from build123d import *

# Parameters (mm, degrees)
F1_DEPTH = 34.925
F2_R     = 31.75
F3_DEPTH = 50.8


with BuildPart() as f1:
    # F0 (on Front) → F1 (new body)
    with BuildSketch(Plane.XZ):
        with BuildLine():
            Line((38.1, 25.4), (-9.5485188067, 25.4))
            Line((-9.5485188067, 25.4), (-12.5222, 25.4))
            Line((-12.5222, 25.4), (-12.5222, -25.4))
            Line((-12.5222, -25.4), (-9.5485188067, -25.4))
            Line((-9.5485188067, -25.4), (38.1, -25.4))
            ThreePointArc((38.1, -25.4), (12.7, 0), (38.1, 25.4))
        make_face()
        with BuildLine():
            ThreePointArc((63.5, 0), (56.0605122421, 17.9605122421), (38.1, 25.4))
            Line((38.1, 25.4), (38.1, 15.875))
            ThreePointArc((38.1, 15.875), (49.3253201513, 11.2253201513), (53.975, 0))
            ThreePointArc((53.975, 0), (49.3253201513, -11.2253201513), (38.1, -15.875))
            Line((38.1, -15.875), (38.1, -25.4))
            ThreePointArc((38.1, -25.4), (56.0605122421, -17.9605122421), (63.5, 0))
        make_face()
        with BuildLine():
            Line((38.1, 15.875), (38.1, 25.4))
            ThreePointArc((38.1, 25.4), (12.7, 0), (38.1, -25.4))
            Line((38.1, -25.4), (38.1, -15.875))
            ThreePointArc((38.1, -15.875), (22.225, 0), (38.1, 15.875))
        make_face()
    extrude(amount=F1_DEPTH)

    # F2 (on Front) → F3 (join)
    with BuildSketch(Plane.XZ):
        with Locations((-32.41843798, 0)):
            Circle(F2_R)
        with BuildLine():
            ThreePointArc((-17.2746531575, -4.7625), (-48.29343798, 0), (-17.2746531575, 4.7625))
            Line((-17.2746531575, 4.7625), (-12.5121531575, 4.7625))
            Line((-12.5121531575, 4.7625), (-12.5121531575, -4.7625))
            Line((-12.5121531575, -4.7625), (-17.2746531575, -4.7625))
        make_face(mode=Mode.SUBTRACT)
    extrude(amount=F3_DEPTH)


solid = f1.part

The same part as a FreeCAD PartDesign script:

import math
import FreeCAD as App
import Part
import Sketcher
from FreeCAD import Vector
Q = App.Units.Quantity

doc = App.newDocument("Part")
params = doc.addObject("Spreadsheet::Sheet", "Params")
for row, (alias, value) in enumerate([
    ("sketch1_radius", "1 in"),
    ("sketch1_radius2", "0.625 in"),
    ("sketch1_width", "1.993 in"),
    ("pad1_length", "1.375 in"),
    ("sketch2_diameter", "2.5 in"),
    ("sketch2_radius", "0.625 in"),
    ("sketch2_width", "0.1875 in"),
    ("sketch2_height", "0.375 in"),
    ("pad2_length", "2 in"),
], start=1):
    params.set(f"A{row}", alias)
    params.set(f"B{row}", "=" + value)
    params.setAlias(f"B{row}", alias)

body = doc.addObject("PartDesign::Body", "Body")

sketch1 = doc.addObject("Sketcher::SketchObject", "Sketch")
body.addObject(sketch1)
sketch1.AttachmentSupport = (doc.XZ_Plane, [""])
sketch1.MapMode = "FlatFace"
sketch1.addGeometry([
    Part.LineSegment(Vector(38, 25, 0), Vector(-13, 25, 0)),
    Part.LineSegment(Vector(-13, 25, 0), Vector(-13, -25, 0)),
    Part.LineSegment(Vector(-13, -25, 0), Vector(38, -25, 0)),
    Part.ArcOfCircle(Part.Circle(Vector(38, 0, 0), Vector(0, 0, 1), 25), math.radians(-90), math.radians(0)),
    Part.ArcOfCircle(Part.Circle(Vector(38, 0, 0), Vector(0, 0, 1), 25), math.radians(0), math.radians(90)),
    Part.ArcOfCircle(Part.Circle(Vector(38, 0, 0), Vector(0, 0, 1), 16), math.radians(90), math.radians(270)),
    Part.ArcOfCircle(Part.Circle(Vector(38, 0, 0), Vector(0, 0, 1), 16), math.radians(0), math.radians(90)),
    Part.ArcOfCircle(Part.Circle(Vector(38, 0, 0), Vector(0, 0, 1), 16), math.radians(-90), math.radians(0)),
], False)
sketch1.addConstraint([
    Sketcher.Constraint("Coincident", 0, 2, 1, 1),
    Sketcher.Constraint("Coincident", 1, 2, 2, 1),
    Sketcher.Constraint("Tangent", 2, 2, 3, 1),
    Sketcher.Constraint("Tangent", 3, 2, 4, 1),
    Sketcher.Constraint("Tangent", 4, 2, 0, 1),
    Sketcher.Constraint("Tangent", 5, 1, 6, 2),
    Sketcher.Constraint("Tangent", 6, 1, 7, 2),
    Sketcher.Constraint("Tangent", 7, 1, 5, 2),
    Sketcher.Constraint("Horizontal", 0),
    Sketcher.Constraint("Vertical", 1),
    Sketcher.Constraint("Horizontal", 2),
    Sketcher.Constraint("Coincident", 5, 3, 3, 3),
    Sketcher.Constraint("Equal", 3, 4),
    Sketcher.Constraint("Symmetric", 5, 1, 7, 1, -1),
    Sketcher.Constraint("PointOnObject", 3, 2, -1),
    Sketcher.Constraint("PointOnObject", 6, 1, -1),
    Sketcher.Constraint("Vertical", 4, 2, 5, 1),
    Sketcher.Constraint("Radius", 3, Q("1 in")),
    Sketcher.Constraint("Radius", 5, Q("0.625 in")),
    Sketcher.Constraint("DistanceX", -1, 1, 3, 3, Q("1.5 in")),
    Sketcher.Constraint("DistanceX", 0, 2, 0, 1, Q("1.993 in")),
])
sketch1.setExpression("Constraints[17]", "Params.sketch1_radius")
sketch1.setExpression("Constraints[18]", "Params.sketch1_radius2")
sketch1.setExpression("Constraints[20]", "Params.sketch1_width")
pad1 = doc.addObject("PartDesign::Pad", "Pad")
body.addObject(pad1)
pad1.Profile = sketch1
pad1.setExpression("Length", "Params.pad1_length")

sketch2 = doc.addObject("Sketcher::SketchObject", "Sketch001")
body.addObject(sketch2)
sketch2.AttachmentSupport = (doc.XZ_Plane, [""])
sketch2.MapMode = "FlatFace"
sketch2.addGeometry([
    Part.Circle(Vector(-32.4, 0, 0), Vector(0, 0, 1), 31.8),
    Part.LineSegment(Vector(-12.5, -4.8, 0), Vector(-17.3, -4.8, 0)),
    Part.ArcOfCircle(Part.Circle(Vector(-32.4, 0, 0), Vector(0, 0, 1), 15.9), math.radians(17), math.radians(343)),
    Part.LineSegment(Vector(-17.3, 4.8, 0), Vector(-12.5, 4.8, 0)),
    Part.LineSegment(Vector(-12.5, 4.8, 0), Vector(-12.5, -4.8, 0)),
], False)
sketch2.addConstraint([
    Sketcher.Constraint("Coincident", 1, 2, 2, 2),
    Sketcher.Constraint("Coincident", 2, 1, 3, 1),
    Sketcher.Constraint("Coincident", 3, 2, 4, 1),
    Sketcher.Constraint("Coincident", 4, 2, 1, 1),
    Sketcher.Constraint("Horizontal", 1),
    Sketcher.Constraint("Horizontal", 3),
    Sketcher.Constraint("Vertical", 4),
    Sketcher.Constraint("Coincident", 2, 3, 0, 3),
    Sketcher.Constraint("Symmetric", 1, 2, 2, 1, -1),
    Sketcher.Constraint("Diameter", 0, Q("2.5 in")),
    Sketcher.Constraint("Radius", 2, Q("0.625 in")),
    Sketcher.Constraint("DistanceX", 1, 2, 1, 1, Q("0.1875 in")),
    Sketcher.Constraint("DistanceY", 4, 2, 4, 1, Q("0.375 in")),
    Sketcher.Constraint("DistanceX", 0, 3, -1, 1, Q("32.418438 mm")),
])
sketch2.setExpression("Constraints[9]", "Params.sketch2_diameter")
sketch2.setExpression("Constraints[10]", "Params.sketch2_radius")
sketch2.setExpression("Constraints[11]", "Params.sketch2_width")
sketch2.setExpression("Constraints[12]", "Params.sketch2_height")
pad2 = doc.addObject("PartDesign::Pad", "Pad001")
body.addObject(pad2)
pad2.Profile = sketch2
pad2.setExpression("Length", "Params.pad2_length")

doc.recompute()
